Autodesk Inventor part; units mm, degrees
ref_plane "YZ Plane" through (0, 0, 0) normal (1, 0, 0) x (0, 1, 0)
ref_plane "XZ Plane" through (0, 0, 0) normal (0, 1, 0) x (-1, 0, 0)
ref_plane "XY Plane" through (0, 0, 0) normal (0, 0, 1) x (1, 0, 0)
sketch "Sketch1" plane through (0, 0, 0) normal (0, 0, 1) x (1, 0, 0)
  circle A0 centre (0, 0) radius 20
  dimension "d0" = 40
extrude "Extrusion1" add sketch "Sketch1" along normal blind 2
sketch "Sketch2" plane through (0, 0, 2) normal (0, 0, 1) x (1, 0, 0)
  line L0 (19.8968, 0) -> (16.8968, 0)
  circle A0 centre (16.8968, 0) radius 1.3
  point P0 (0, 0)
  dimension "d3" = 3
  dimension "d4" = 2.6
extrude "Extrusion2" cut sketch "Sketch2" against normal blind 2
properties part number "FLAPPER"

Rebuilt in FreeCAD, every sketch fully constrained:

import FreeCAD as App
import Part
import Sketcher
from FreeCAD import Vector

doc = App.newDocument("Part")
params = doc.addObject("Spreadsheet::Sheet", "Params")
for row, (alias, value) in enumerate([
    ("sketch1_diameter", "40 mm"),
    ("pad1_length", "2 mm"),
    ("sketch2_diameter", "2.6 mm"),
    ("pocket1_length", "2 mm"),
], start=1):
    params.set(f"A{row}", alias)
    params.set(f"B{row}", "=" + value)
    params.setAlias(f"B{row}", alias)

body = doc.addObject("PartDesign::Body", "Body")

# Sketch on XY plane
sketch1 = body.newObject("Sketcher::SketchObject", "Sketch")
sketch1.AttachmentSupport = (doc.getObject("XY_Plane"), [""])
sketch1.MapMode = "FlatFace"
sketch1.addGeometry(Part.Circle(Vector(0, 0, 0), Vector(0, 0, 1), 20), False)
sketch1.addConstraint([
    Sketcher.Constraint("Coincident", 0, 3, -1, 1),
    Sketcher.Constraint("Diameter", 0, 40.0),
])
sketch1.setExpression("Constraints[1]", "Params.sketch1_diameter")
pad1 = body.newObject("PartDesign::Pad", "Pad")
pad1.Profile = sketch1
pad1.setExpression("Length", "Params.pad1_length")

# Sketch on XY plane
sketch2 = body.newObject("Sketcher::SketchObject", "Sketch001")
sketch2.AttachmentSupport = (doc.getObject("XY_Plane"), [""])
sketch2.MapMode = "FlatFace"
sketch2.AttachmentOffset = App.Placement(Vector(0, 0, 2), App.Rotation())
sketch2.addGeometry(Part.Circle(Vector(16.9, 0, 0), Vector(0, 0, 1), 1.3), False)
sketch2.addConstraint([
    Sketcher.Constraint("PointOnObject", 0, 3, -1),
    Sketcher.Constraint("Diameter", 0, 2.6),
    Sketcher.Constraint("DistanceX", -1, 1, 0, 3, 16.8968),
])
sketch2.setExpression("Constraints[1]", "Params.sketch2_diameter")
pocket1 = body.newObject("PartDesign::Pocket", "Pocket")
pocket1.Profile = sketch2
pocket1.setExpression("Length", "Params.pocket1_length")

doc.recompute()
